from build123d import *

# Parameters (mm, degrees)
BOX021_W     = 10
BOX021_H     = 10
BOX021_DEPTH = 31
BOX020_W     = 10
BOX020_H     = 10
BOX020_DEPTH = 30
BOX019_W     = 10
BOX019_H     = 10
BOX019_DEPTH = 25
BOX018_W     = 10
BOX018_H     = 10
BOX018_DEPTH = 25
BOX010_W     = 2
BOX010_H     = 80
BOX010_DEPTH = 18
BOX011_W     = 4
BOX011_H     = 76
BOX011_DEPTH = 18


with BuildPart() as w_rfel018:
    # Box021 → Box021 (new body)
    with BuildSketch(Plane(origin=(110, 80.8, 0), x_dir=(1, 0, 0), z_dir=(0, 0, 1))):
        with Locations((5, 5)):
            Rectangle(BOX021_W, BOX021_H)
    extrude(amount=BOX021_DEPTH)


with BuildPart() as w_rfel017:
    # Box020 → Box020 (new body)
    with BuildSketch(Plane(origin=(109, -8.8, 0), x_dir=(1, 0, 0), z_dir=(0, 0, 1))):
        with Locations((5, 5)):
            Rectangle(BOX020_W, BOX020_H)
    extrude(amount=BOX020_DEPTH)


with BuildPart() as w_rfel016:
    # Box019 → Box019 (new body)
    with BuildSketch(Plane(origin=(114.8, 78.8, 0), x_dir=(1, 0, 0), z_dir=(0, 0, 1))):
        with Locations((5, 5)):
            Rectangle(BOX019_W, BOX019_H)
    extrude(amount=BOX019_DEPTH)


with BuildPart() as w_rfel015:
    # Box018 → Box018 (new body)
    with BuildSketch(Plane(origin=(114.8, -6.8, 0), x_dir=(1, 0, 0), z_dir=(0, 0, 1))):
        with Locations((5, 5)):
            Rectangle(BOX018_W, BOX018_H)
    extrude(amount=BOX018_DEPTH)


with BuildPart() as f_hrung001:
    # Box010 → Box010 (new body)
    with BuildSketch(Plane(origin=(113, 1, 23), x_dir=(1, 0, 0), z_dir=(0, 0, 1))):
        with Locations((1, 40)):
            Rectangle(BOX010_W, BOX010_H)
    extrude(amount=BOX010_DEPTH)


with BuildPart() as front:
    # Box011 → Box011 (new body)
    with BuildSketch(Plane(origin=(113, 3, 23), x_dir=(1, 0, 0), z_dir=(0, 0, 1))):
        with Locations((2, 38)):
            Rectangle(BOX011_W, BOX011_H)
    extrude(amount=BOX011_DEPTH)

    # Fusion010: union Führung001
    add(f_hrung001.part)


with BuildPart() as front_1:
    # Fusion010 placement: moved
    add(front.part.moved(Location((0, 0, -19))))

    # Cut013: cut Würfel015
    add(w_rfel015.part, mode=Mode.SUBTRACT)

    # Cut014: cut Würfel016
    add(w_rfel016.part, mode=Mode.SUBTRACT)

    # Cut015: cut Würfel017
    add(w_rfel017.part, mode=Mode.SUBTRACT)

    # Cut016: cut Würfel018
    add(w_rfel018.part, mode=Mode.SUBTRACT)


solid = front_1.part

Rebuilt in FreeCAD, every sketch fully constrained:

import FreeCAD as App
import Part
import Sketcher

V = App.Vector

doc = App.newDocument("Part")
body = doc.addObject("PartDesign::Body", "Body")

sketch1 = body.newObject("Sketcher::SketchObject", "Sketch")
sketch1.AttachmentSupport = (doc.getObject("XY_Plane"), [""])
sketch1.MapMode = "FlatFace"
sketch1.addGeometry(Part.LineSegment(V(110, 91, 0), V(110, 81, 0)), False)
sketch1.addGeometry(Part.LineSegment(V(110, 81, 0), V(120, 81, 0)), False)
sketch1.addGeometry(Part.LineSegment(V(120, 81, 0), V(120, 91, 0)), False)
sketch1.addGeometry(Part.LineSegment(V(120, 91, 0), V(110, 91, 0)), False)
sketch1.addConstraint(Sketcher.Constraint("Coincident", 0, 2, 1, 1))
sketch1.addConstraint(Sketcher.Constraint("Coincident", 1, 2, 2, 1))
sketch1.addConstraint(Sketcher.Constraint("Coincident", 2, 2, 3, 1))
sketch1.addConstraint(Sketcher.Constraint("Coincident", 3, 2, 0, 1))
sketch1.addConstraint(Sketcher.Constraint("Vertical", 0))
sketch1.addConstraint(Sketcher.Constraint("Horizontal", 1))
sketch1.addConstraint(Sketcher.Constraint("Vertical", 2))
sketch1.addConstraint(Sketcher.Constraint("Horizontal", 3))
sketch1.addConstraint(Sketcher.Constraint("Equal", 3, 0))
sketch1.addConstraint(Sketcher.Constraint("DistanceX", 1, 1, 1, 2, 10.0))
sketch1.addConstraint(Sketcher.Constraint("DistanceX", -1, 1, 0, 2, 110.0))
sketch1.addConstraint(Sketcher.Constraint("DistanceY", -1, 1, 0, 2, 80.8))
pad1 = body.newObject("PartDesign::Pad", "Pad")
pad1.Profile = sketch1
pad1.Length = 31
body2 = doc.addObject("PartDesign::Body", "Body001")

sketch2 = body2.newObject("Sketcher::SketchObject", "Sketch001")
sketch2.AttachmentSupport = (doc.getObject("XY_Plane001"), [""])
sketch2.MapMode = "FlatFace"
sketch2.addGeometry(Part.LineSegment(V(109, 1, 0), V(109, -9, 0)), False)
sketch2.addGeometry(Part.LineSegment(V(109, -9, 0), V(119, -9, 0)), False)
sketch2.addGeometry(Part.LineSegment(V(119, -9, 0), V(119, 1, 0)), False)
sketch2.addGeometry(Part.LineSegment(V(119, 1, 0), V(109, 1, 0)), False)
sketch2.addConstraint(Sketcher.Constraint("Coincident", 0, 2, 1, 1))
sketch2.addConstraint(Sketcher.Constraint("Coincident", 1, 2, 2, 1))
sketch2.addConstraint(Sketcher.Constraint("Coincident", 2, 2, 3, 1))
sketch2.addConstraint(Sketcher.Constraint("Coincident", 3, 2, 0, 1))
sketch2.addConstraint(Sketcher.Constraint("Vertical", 0))
sketch2.addConstraint(Sketcher.Constraint("Horizontal", 1))
sketch2.addConstraint(Sketcher.Constraint("Vertical", 2))
sketch2.addConstraint(Sketcher.Constraint("Horizontal", 3))
sketch2.addConstraint(Sketcher.Constraint("Equal", 3, 0))
sketch2.addConstraint(Sketcher.Constraint("DistanceX", 1, 1, 1, 2, 10.0))
sketch2.addConstraint(Sketcher.Constraint("DistanceX", -1, 1, 0, 2, 109.0))
sketch2.addConstraint(Sketcher.Constraint("DistanceY", 0, 2, -1, 1, 8.8))
pad2 = body2.newObject("PartDesign::Pad", "Pad001")
pad2.Profile = sketch2
pad2.Length = 30
body3 = doc.addObject("PartDesign::Body", "Body002")

sketch3 = body3.newObject("Sketcher::SketchObject", "Sketch002")
sketch3.AttachmentSupport = (doc.getObject("XY_Plane002"), [""])
sketch3.MapMode = "FlatFace"
sketch3.addGeometry(Part.LineSegment(V(115, 89, 0), V(115, 79, 0)), False)
sketch3.addGeometry(Part.LineSegment(V(115, 79, 0), V(125, 79, 0)), False)
sketch3.addGeometry(Part.LineSegment(V(125, 79, 0), V(125, 89, 0)), False)
sketch3.addGeometry(Part.LineSegment(V(125, 89, 0), V(115, 89, 0)), False)
sketch3.addConstraint(Sketcher.Constraint("Coincident", 0, 2, 1, 1))
sketch3.addConstraint(Sketcher.Constraint("Coincident", 1, 2, 2, 1))
sketch3.addConstraint(Sketcher.Constraint("Coincident", 2, 2, 3, 1))
sketch3.addConstraint(Sketcher.Constraint("Coincident", 3, 2, 0, 1))
sketch3.addConstraint(Sketcher.Constraint("Vertical", 0))
sketch3.addConstraint(Sketcher.Constraint("Horizontal", 1))
sketch3.addConstraint(Sketcher.Constraint("Vertical", 2))
sketch3.addConstraint(Sketcher.Constraint("Horizontal", 3))
sketch3.addConstraint(Sketcher.Constraint("Equal", 3, 0))
sketch3.addConstraint(Sketcher.Constraint("DistanceX", 1, 1, 1, 2, 10.0))
sketch3.addConstraint(Sketcher.Constraint("DistanceX", -1, 1, 0, 2, 114.8))
sketch3.addConstraint(Sketcher.Constraint("DistanceY", -1, 1, 0, 2, 78.8))
pad3 = body3.newObject("PartDesign::Pad", "Pad002")
pad3.Profile = sketch3
pad3.Length = 25
body4 = doc.addObject("PartDesign::Body", "Body003")

sketch4 = body4.newObject("Sketcher::SketchObject", "Sketch003")
sketch4.AttachmentSupport = (doc.getObject("XY_Plane003"), [""])
sketch4.MapMode = "FlatFace"
sketch4.addGeometry(Part.LineSegment(V(115, 3, 0), V(115, -7, 0)), False)
sketch4.addGeometry(Part.LineSegment(V(115, -7, 0), V(125, -7, 0)), False)
sketch4.addGeometry(Part.LineSegment(V(125, -7, 0), V(125, 3, 0)), False)
sketch4.addGeometry(Part.LineSegment(V(125, 3, 0), V(115, 3, 0)), False)
sketch4.addConstraint(Sketcher.Constraint("Coincident", 0, 2, 1, 1))
sketch4.addConstraint(Sketcher.Constraint("Coincident", 1, 2, 2, 1))
sketch4.addConstraint(Sketcher.Constraint("Coincident", 2, 2, 3, 1))
sketch4.addConstraint(Sketcher.Constraint("Coincident", 3, 2, 0, 1))
sketch4.addConstraint(Sketcher.Constraint("Vertical", 0))
sketch4.addConstraint(Sketcher.Constraint("Horizontal", 1))
sketch4.addConstraint(Sketcher.Constraint("Vertical", 2))
sketch4.addConstraint(Sketcher.Constraint("Horizontal", 3))
sketch4.addConstraint(Sketcher.Constraint("Equal", 3, 0))
sketch4.addConstraint(Sketcher.Constraint("DistanceX", 1, 1, 1, 2, 10.0))
sketch4.addConstraint(Sketcher.Constraint("DistanceX", -1, 1, 0, 2, 114.8))
sketch4.addConstraint(Sketcher.Constraint("DistanceY", 0, 2, -1, 1, 6.8))
pad4 = body4.newObject("PartDesign::Pad", "Pad003")
pad4.Profile = sketch4
pad4.Length = 25
body5 = doc.addObject("PartDesign::Body", "Body004")

sketch5 = body5.newObject("Sketcher::SketchObject", "Sketch004")
sketch5.AttachmentSupport = (doc.getObject("XY_Plane004"), [""])
sketch5.MapMode = "FlatFace"
sketch5.AttachmentOffset = App.Placement(V(0, 0, 23), App.Rotation())
sketch5.addGeometry(Part.LineSegment(V(113, 81, 0), V(113, 1, 0)), False)
sketch5.addGeometry(Part.LineSegment(V(113, 1, 0), V(115, 1, 0)), False)
sketch5.addGeometry(Part.LineSegment(V(115, 1, 0), V(115, 81, 0)), False)
sketch5.addGeometry(Part.LineSegment(V(115, 81, 0), V(113, 81, 0)), False)
sketch5.addConstraint(Sketcher.Constraint("Coincident", 0, 2, 1, 1))
sketch5.addConstraint(Sketcher.Constraint("Coincident", 1, 2, 2, 1))
sketch5.addConstraint(Sketcher.Constraint("Coincident", 2, 2, 3, 1))
sketch5.addConstraint(Sketcher.Constraint("Coincident", 3, 2, 0, 1))
sketch5.addConstraint(Sketcher.Constraint("Vertical", 0))
sketch5.addConstraint(Sketcher.Constraint("Horizontal", 1))
sketch5.addConstraint(Sketcher.Constraint("Vertical", 2))
sketch5.addConstraint(Sketcher.Constraint("Horizontal", 3))
sketch5.addConstraint(Sketcher.Constraint("DistanceX", 1, 1, 1, 2, 2.0))
sketch5.addConstraint(Sketcher.Constraint("DistanceY", 0, 2, 0, 1, 80.0))
sketch5.addConstraint(Sketcher.Constraint("DistanceX", -1, 1, 0, 2, 113.0))
sketch5.addConstraint(Sketcher.Constraint("DistanceY", -1, 1, 0, 2, 1.0))
pad5 = body5.newObject("PartDesign::Pad", "Pad004")
pad5.Profile = sketch5
pad5.Length = 18
body6 = doc.addObject("PartDesign::Body", "Body005")

sketch6 = body6.newObject("Sketcher::SketchObject", "Sketch005")
sketch6.AttachmentSupport = (doc.getObject("XY_Plane005"), [""])
sketch6.MapMode = "FlatFace"
sketch6.AttachmentOffset = App.Placement(V(0, 0, 23), App.Rotation())
sketch6.addGeometry(Part.LineSegment(V(113, 79, 0), V(113, 3, 0)), False)
sketch6.addGeometry(Part.LineSegment(V(113, 3, 0), V(117, 3, 0)), False)
sketch6.addGeometry(Part.LineSegment(V(117, 3, 0), V(117, 79, 0)), False)
sketch6.addGeometry(Part.LineSegment(V(117, 79, 0), V(113, 79, 0)), False)
sketch6.addConstraint(Sketcher.Constraint("Coincident", 0, 2, 1, 1))
sketch6.addConstraint(Sketcher.Constraint("Coincident", 1, 2, 2, 1))
sketch6.addConstraint(Sketcher.Constraint("Coincident", 2, 2, 3, 1))
sketch6.addConstraint(Sketcher.Constraint("Coincident", 3, 2, 0, 1))
sketch6.addConstraint(Sketcher.Constraint("Vertical", 0))
sketch6.addConstraint(Sketcher.Constraint("Horizontal", 1))
sketch6.addConstraint(Sketcher.Constraint("Vertical", 2))
sketch6.addConstraint(Sketcher.Constraint("Horizontal", 3))
sketch6.addConstraint(Sketcher.Constraint("DistanceX", 1, 1, 1, 2, 4.0))
sketch6.addConstraint(Sketcher.Constraint("DistanceY", 0, 2, 0, 1, 76.0))
sketch6.addConstraint(Sketcher.Constraint("DistanceX", -1, 1, 0, 2, 113.0))
sketch6.addConstraint(Sketcher.Constraint("DistanceY", -1, 1, 0, 2, 3.0))
pad6 = body6.newObject("PartDesign::Pad", "Pad005")
pad6.Profile = sketch6
pad6.Length = 18
doc.recompute()

boolean = body6.newObject("PartDesign::Boolean", "Boolean")
boolean.Type = "Fuse"
boolean.addObjects([body5])
body7 = doc.addObject("PartDesign::Body", "Body006")
doc.recompute()

body6.Placement = App.Placement(V(0, 0, -19), App.Rotation(V(0, 0, 1), 0))
boolean2 = body7.newObject("PartDesign::Boolean", "Boolean001")
boolean2.Type = "Fuse"
boolean2.addObjects([body6])
doc.recompute()

boolean3 = body7.newObject("PartDesign::Boolean", "Boolean002")
boolean3.Type = "Cut"
boolean3.addObjects([body4])
doc.recompute()

boolean4 = body7.newObject("PartDesign::Boolean", "Boolean003")
boolean4.Type = "Cut"
boolean4.addObjects([body3])
doc.recompute()

boolean5 = body7.newObject("PartDesign::Boolean", "Boolean004")
boolean5.Type = "Cut"
boolean5.addObjects([body2])
doc.recompute()

boolean6 = body7.newObject("PartDesign::Boolean", "Boolean005")
boolean6.Type = "Cut"
boolean6.addObjects([body])

doc.recompute()
